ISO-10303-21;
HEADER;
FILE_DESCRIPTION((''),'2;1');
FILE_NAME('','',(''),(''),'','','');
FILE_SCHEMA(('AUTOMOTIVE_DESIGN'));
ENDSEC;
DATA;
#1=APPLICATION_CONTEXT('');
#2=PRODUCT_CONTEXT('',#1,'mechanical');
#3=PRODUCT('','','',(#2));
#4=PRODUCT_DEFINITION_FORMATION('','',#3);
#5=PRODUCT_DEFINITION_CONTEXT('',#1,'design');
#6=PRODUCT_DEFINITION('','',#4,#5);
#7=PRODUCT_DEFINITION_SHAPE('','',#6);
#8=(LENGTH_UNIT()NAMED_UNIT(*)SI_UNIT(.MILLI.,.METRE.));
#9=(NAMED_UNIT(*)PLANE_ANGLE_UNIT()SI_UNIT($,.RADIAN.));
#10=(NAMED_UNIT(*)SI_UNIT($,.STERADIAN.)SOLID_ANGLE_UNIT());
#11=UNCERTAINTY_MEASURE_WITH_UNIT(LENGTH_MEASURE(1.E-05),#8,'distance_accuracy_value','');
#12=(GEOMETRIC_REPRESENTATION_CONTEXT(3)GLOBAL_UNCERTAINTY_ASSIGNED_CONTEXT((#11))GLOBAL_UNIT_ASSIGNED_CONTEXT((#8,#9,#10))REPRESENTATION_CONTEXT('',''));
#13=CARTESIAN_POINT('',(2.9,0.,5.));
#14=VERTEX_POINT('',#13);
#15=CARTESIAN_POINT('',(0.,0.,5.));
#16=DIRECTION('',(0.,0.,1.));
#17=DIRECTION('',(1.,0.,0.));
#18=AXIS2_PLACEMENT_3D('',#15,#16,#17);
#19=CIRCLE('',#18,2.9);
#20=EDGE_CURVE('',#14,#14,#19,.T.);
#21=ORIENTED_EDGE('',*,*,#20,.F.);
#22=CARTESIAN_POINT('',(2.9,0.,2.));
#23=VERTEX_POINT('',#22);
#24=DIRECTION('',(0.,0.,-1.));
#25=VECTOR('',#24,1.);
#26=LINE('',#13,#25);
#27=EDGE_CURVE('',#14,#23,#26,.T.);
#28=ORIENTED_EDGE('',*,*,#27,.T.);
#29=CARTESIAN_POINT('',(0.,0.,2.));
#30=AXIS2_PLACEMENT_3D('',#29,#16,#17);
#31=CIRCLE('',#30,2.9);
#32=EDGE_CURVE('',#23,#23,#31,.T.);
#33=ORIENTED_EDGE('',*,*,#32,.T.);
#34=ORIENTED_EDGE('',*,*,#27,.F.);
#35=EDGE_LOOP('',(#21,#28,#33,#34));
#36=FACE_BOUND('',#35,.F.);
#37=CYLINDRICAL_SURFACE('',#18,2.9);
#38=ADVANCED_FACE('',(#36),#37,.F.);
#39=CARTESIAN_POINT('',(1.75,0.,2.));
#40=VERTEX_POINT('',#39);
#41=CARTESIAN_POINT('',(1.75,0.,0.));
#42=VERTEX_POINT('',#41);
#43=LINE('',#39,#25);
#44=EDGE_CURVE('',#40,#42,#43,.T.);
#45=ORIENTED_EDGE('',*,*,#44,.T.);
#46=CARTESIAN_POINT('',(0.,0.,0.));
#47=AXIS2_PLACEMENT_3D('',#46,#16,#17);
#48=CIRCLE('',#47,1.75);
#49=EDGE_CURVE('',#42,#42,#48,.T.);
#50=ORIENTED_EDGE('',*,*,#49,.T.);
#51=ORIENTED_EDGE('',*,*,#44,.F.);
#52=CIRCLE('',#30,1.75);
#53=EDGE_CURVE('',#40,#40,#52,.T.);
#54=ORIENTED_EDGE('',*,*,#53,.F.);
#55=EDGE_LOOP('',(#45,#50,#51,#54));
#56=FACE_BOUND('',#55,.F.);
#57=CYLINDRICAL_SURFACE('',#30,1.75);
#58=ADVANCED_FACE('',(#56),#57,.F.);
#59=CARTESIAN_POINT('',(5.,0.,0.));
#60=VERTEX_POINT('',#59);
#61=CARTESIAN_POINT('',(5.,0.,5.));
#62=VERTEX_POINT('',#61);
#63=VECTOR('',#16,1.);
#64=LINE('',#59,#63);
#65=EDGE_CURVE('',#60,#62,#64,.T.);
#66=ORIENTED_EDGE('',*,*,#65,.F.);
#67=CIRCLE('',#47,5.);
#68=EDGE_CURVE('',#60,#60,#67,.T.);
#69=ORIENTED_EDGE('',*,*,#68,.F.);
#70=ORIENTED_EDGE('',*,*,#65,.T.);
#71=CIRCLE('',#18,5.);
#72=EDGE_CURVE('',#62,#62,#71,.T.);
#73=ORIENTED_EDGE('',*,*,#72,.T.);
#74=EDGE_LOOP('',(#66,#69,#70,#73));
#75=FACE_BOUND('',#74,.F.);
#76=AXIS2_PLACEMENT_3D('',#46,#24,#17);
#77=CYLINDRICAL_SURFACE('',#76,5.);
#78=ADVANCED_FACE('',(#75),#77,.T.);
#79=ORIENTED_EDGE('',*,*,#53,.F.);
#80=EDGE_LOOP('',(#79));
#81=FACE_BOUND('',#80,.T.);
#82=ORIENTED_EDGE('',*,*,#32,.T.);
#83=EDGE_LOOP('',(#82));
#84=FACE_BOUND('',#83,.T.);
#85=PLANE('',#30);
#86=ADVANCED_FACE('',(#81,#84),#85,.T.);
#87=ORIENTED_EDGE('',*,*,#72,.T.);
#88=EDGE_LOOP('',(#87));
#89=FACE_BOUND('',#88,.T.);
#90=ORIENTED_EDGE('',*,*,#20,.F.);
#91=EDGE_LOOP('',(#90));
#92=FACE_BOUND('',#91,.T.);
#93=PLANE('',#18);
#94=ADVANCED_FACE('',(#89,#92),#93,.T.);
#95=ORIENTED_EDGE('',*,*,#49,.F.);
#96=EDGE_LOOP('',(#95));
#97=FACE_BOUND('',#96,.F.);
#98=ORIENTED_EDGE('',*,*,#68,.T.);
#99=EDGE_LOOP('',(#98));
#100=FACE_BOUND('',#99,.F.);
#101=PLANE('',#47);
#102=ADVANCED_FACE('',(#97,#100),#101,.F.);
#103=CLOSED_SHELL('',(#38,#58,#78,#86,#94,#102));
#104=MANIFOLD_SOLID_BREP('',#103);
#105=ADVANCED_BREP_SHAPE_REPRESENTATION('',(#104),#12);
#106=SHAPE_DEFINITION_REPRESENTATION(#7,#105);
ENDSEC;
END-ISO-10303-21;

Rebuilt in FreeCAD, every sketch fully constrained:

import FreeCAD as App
import Part
import Sketcher
from FreeCAD import Vector
Q = App.Units.Quantity

doc = App.newDocument("Part")
params = doc.addObject("Spreadsheet::Sheet", "Params")
for row, (alias, value) in enumerate([
    ("sketch1_diameter", "10 mm"),
    ("pad1_length", "5 mm"),
    ("sketch2_diameter", "5.8 mm"),
    ("pocket1_length", "3 mm"),
    ("sketch3_diameter", "3.5 mm"),
], start=1):
    params.set(f"A{row}", alias)
    params.set(f"B{row}", "=" + value)
    params.setAlias(f"B{row}", alias)

body = doc.addObject("PartDesign::Body", "Body")

sketch1 = body.newObject("Sketcher::SketchObject", "Sketch")
sketch1.AttachmentSupport = (doc.getObject("XY_Plane"), [""])
sketch1.MapMode = "FlatFace"
sketch1.addGeometry(Part.Circle(Vector(0, 0, 0), Vector(0, 0, 1), 5), False)
sketch1.addConstraint(Sketcher.Constraint("Coincident", 0, 3, -1, 1))
sketch1.addConstraint(Sketcher.Constraint("Diameter", 0, Q("10 mm")))
sketch1.setExpression("Constraints[1]", "Params.sketch1_diameter")
pad1 = body.newObject("PartDesign::Pad", "Pad")
pad1.Profile = sketch1
pad1.setExpression("Length", "Params.pad1_length")

sketch2 = body.newObject("Sketcher::SketchObject", "Sketch001")
sketch2.AttachmentSupport = (doc.getObject("XY_Plane"), [""])
sketch2.MapMode = "FlatFace"
sketch2.AttachmentOffset = App.Placement(Vector(0, 0, 5), App.Rotation())
sketch2.addGeometry(Part.Circle(Vector(0, 0, 0), Vector(0, 0, 1), 2.9), False)
sketch2.addConstraint(Sketcher.Constraint("Coincident", 0, 3, -1, 1))
sketch2.addConstraint(Sketcher.Constraint("Diameter", 0, Q("5.8 mm")))
sketch2.setExpression("Constraints[1]", "Params.sketch2_diameter")
pocket1 = body.newObject("PartDesign::Pocket", "Pocket")
pocket1.Profile = sketch2
pocket1.setExpression("Length", "Params.pocket1_length")

sketch3 = body.newObject("Sketcher::SketchObject", "Sketch002")
sketch3.AttachmentSupport = (doc.getObject("XY_Plane"), [""])
sketch3.MapMode = "FlatFace"
sketch3.AttachmentOffset = App.Placement(Vector(0, 0, 2), App.Rotation())
sketch3.addGeometry(Part.Circle(Vector(0, 0, 0), Vector(0, 0, 1), 1.8), False)
sketch3.addConstraint(Sketcher.Constraint("Coincident", 0, 3, -1, 1))
sketch3.addConstraint(Sketcher.Constraint("Diameter", 0, Q("3.5 mm")))
sketch3.setExpression("Constraints[1]", "Params.sketch3_diameter")
pocket2 = body.newObject("PartDesign::Pocket", "Pocket001")
pocket2.Profile = sketch3
pocket2.Type = "ThroughAll"

doc.recompute()
